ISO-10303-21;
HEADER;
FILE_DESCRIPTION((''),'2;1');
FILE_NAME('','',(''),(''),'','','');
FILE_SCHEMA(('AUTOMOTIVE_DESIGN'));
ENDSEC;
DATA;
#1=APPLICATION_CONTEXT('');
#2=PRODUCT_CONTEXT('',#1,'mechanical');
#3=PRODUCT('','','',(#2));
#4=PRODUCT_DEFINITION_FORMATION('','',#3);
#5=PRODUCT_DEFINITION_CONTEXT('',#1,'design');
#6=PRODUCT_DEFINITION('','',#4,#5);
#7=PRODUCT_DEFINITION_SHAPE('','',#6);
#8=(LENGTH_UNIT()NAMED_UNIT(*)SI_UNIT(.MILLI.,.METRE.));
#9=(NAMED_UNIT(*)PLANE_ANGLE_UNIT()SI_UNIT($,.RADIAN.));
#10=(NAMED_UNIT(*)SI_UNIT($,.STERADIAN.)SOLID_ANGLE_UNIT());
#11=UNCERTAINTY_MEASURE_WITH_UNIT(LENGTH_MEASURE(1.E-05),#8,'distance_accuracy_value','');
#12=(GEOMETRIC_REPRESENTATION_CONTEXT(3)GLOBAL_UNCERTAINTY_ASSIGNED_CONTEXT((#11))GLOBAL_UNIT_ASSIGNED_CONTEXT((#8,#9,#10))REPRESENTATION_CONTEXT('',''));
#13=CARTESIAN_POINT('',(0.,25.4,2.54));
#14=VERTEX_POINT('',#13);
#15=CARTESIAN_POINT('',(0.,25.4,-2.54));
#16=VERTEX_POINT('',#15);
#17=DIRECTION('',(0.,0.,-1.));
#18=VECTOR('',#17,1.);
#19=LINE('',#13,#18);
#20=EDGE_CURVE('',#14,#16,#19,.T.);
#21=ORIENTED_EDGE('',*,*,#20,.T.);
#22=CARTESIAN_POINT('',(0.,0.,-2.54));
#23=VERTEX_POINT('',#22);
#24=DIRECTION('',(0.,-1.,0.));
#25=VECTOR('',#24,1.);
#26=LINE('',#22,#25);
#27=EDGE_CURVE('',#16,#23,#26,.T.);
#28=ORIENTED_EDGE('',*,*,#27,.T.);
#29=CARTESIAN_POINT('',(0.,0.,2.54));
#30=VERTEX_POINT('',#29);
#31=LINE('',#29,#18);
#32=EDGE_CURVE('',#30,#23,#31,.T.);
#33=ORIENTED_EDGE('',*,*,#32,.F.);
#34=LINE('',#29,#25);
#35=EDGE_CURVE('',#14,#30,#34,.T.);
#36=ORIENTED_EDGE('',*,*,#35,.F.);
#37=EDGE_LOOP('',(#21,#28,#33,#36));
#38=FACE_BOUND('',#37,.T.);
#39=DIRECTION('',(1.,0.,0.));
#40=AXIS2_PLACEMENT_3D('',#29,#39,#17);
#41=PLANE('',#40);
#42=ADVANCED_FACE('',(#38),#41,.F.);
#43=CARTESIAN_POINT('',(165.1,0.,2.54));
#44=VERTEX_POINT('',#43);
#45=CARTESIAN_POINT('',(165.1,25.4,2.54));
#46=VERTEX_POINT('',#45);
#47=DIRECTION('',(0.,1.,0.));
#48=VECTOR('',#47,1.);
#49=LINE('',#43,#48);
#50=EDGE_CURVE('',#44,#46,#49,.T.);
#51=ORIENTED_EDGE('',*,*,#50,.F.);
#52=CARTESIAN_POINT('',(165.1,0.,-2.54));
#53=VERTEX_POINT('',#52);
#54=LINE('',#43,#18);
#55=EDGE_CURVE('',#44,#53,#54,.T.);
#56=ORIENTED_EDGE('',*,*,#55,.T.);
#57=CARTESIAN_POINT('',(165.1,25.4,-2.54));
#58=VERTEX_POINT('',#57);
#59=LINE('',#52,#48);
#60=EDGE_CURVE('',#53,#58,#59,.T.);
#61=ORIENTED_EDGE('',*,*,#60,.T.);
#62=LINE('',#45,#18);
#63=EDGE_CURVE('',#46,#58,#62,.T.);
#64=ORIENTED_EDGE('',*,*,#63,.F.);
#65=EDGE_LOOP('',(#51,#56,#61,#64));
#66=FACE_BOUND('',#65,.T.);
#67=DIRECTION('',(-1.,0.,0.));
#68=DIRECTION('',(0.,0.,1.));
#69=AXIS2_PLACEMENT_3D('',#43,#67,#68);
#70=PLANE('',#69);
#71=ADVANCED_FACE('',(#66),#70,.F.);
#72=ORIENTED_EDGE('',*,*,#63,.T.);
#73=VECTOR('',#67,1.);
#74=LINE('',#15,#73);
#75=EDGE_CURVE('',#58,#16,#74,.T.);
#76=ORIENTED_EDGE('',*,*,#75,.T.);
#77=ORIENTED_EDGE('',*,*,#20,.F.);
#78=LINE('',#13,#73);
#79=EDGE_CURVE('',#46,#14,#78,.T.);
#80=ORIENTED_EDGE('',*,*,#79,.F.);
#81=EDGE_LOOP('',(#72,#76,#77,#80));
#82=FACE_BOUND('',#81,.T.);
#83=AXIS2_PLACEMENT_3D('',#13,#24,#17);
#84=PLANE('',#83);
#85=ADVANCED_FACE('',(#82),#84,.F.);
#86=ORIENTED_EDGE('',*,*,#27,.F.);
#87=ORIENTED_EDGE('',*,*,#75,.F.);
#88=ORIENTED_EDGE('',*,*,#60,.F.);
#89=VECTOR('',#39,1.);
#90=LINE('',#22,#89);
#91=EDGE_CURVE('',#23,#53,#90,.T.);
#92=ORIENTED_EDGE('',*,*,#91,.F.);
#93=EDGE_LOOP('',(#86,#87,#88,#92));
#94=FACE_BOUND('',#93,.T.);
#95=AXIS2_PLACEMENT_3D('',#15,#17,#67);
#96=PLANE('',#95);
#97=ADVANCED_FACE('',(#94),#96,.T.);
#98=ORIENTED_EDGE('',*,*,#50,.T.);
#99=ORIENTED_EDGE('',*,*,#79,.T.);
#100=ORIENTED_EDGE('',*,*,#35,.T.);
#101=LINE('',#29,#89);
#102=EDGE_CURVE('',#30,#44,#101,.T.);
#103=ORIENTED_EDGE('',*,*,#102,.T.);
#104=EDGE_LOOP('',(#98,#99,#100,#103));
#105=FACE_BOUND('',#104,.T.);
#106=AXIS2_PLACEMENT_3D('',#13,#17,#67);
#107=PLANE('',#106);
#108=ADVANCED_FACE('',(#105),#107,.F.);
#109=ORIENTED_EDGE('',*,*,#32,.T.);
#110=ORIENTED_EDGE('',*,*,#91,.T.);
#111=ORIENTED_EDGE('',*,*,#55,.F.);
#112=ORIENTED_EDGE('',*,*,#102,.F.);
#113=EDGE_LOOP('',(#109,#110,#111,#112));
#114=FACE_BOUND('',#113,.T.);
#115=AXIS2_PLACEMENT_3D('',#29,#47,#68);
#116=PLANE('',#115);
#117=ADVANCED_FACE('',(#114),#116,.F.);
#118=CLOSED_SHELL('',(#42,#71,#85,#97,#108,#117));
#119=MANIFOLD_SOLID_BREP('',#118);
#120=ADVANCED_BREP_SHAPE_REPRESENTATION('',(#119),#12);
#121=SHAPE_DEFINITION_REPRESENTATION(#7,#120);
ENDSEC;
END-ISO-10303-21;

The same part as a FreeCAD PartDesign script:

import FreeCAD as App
import Part
import Sketcher

V = App.Vector
Q = App.Units.Quantity


def add_polygon(sketch, points):
    """Adds a closed chain of lines whose ends are joined by coincident constraints."""
    first, n = sketch.GeometryCount, len(points)
    for a, b in zip(points, points[1:] + points[:1]):
        sketch.addGeometry(Part.LineSegment(App.Vector(*a, 0), App.Vector(*b, 0)), False)
    for i in range(n):
        sketch.addConstraint(Sketcher.Constraint("Coincident", first + i, 2, first + (i + 1) % n, 1))

doc = App.newDocument("Part")
params = doc.addObject("Spreadsheet::Sheet", "Params")
for row, (alias, value) in enumerate([
    ("sketch1_height", "1 in"),
    ("sketch1_width", "6.5 in"),
    ("pad1_length", "0.2 in"),
], start=1):
    params.set(f"A{row}", alias)
    params.set(f"B{row}", "=" + value)
    params.setAlias(f"B{row}", alias)

body = doc.addObject("PartDesign::Body", "Body")

# Sketch on XY plane
sketch1 = body.newObject("Sketcher::SketchObject", "Sketch")
sketch1.AttachmentSupport = (doc.getObject("XY_Plane"), [""])
sketch1.MapMode = "FlatFace"
add_polygon(sketch1, [(0, 25.4), (0, 0), (165.1, 0), (165.1, 25.4)])  # lines 0-3
sketch1.addConstraint([
    Sketcher.Constraint("Vertical", 0),
    Sketcher.Constraint("Horizontal", 1),
    Sketcher.Constraint("Vertical", 2),
    Sketcher.Constraint("Horizontal", 3),
    Sketcher.Constraint("Coincident", 0, 2, -1, 1),
    Sketcher.Constraint("DistanceY", 0, 2, 0, 1, Q("1 in")),
    Sketcher.Constraint("DistanceX", 1, 1, 1, 2, Q("6.5 in")),
])
sketch1.setExpression("Constraints[9]", "Params.sketch1_height")
sketch1.setExpression("Constraints[10]", "Params.sketch1_width")
pad1 = body.newObject("PartDesign::Pad", "Pad")
pad1.Profile = sketch1
pad1.setExpression("Length", "Params.pad1_length")
pad1.Midplane = True

doc.recompute()
